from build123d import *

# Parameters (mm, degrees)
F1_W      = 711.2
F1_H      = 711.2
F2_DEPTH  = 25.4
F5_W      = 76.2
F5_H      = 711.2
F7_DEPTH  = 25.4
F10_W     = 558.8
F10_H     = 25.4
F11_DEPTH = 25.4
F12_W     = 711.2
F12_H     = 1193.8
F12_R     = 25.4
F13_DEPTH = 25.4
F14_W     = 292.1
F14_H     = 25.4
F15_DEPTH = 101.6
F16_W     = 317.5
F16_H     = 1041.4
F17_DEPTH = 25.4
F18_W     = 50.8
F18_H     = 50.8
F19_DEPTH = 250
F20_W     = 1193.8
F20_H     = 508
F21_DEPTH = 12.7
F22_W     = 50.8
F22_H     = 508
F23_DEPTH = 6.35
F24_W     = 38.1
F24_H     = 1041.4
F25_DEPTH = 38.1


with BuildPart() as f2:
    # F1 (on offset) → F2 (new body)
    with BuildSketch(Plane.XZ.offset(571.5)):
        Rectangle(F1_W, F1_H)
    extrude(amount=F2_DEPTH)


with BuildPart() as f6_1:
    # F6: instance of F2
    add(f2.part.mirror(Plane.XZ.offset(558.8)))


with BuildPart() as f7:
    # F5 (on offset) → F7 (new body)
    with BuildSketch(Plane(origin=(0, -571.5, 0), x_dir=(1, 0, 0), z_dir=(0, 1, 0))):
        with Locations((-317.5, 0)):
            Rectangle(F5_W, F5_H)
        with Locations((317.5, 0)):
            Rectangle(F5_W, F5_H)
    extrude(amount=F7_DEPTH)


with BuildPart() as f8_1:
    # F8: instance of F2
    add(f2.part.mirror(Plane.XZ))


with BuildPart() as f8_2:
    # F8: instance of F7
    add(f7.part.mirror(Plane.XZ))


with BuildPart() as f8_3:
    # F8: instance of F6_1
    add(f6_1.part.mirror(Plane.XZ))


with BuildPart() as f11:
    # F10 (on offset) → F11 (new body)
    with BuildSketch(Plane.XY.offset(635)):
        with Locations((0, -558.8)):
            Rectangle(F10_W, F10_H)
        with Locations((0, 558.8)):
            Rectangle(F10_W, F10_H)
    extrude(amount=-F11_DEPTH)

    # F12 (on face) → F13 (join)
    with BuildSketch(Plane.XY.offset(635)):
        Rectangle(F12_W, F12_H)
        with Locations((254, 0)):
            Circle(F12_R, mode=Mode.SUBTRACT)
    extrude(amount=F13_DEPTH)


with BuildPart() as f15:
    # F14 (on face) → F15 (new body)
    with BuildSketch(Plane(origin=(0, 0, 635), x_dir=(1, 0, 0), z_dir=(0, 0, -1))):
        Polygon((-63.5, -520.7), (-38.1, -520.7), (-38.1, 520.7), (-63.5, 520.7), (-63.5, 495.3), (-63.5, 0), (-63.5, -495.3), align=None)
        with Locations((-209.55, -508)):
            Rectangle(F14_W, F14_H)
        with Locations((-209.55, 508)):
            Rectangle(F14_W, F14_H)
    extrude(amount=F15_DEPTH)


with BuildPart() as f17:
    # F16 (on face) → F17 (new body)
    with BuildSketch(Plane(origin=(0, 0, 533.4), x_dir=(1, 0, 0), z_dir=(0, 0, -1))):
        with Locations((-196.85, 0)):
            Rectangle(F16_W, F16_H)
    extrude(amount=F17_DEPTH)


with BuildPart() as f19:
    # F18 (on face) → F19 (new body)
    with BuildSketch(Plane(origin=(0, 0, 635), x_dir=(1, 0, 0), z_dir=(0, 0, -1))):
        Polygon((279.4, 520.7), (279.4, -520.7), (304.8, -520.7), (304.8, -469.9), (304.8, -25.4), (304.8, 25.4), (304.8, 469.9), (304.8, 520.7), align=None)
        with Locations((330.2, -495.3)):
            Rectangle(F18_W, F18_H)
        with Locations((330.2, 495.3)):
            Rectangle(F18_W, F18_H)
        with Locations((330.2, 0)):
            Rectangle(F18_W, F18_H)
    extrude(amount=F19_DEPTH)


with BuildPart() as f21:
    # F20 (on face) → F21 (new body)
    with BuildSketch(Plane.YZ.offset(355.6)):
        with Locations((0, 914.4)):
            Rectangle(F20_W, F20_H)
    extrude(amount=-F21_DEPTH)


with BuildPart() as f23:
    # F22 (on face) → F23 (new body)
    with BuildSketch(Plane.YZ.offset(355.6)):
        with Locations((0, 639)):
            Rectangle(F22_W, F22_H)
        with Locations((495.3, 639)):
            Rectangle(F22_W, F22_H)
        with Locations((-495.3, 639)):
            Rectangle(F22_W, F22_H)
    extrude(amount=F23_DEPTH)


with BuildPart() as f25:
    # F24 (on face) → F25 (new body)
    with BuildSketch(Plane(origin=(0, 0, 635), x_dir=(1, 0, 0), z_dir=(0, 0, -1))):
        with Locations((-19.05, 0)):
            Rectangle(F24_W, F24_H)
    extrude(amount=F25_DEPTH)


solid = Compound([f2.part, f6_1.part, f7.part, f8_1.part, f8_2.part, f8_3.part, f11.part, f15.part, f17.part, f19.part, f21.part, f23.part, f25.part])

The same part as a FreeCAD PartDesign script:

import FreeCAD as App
import Part
import Sketcher

V = App.Vector
Q = App.Units.Quantity


def add_polygon(sketch, points):
    """Adds a closed chain of lines whose ends are joined by coincident constraints."""
    first, n = sketch.GeometryCount, len(points)
    for a, b in zip(points, points[1:] + points[:1]):
        sketch.addGeometry(Part.LineSegment(App.Vector(*a, 0), App.Vector(*b, 0)), False)
    for i in range(n):
        sketch.addConstraint(Sketcher.Constraint("Coincident", first + i, 2, first + (i + 1) % n, 1))

doc = App.newDocument("Part")
body = doc.addObject("PartDesign::Body", "Body")

sketch1 = doc.addObject("Sketcher::SketchObject", "Sketch")
body.addObject(sketch1)
sketch1.AttachmentSupport = (doc.XZ_Plane, [""])
sketch1.MapMode = "FlatFace"
sketch1.AttachmentOffset = App.Placement(V(0, 0, 22.5 * 25.4), App.Rotation())
add_polygon(sketch1, [(-356, 356), (-356, -356), (356, -356), (356, 356)])
sketch1.addConstraint(Sketcher.Constraint("Vertical", 0))
sketch1.addConstraint(Sketcher.Constraint("Horizontal", 1))
sketch1.addConstraint(Sketcher.Constraint("Vertical", 2))
sketch1.addConstraint(Sketcher.Constraint("Horizontal", 3))
sketch1.addConstraint(Sketcher.Constraint("Symmetric", 0, 2, 2, 2, -1, 1))
sketch1.addConstraint(Sketcher.Constraint("Equal", 3, 0))
sketch1.addConstraint(Sketcher.Constraint("DistanceX", 1, 1, 1, 2, Q("28 in")))
pad1 = doc.addObject("PartDesign::Pad", "Pad")
body.addObject(pad1)
pad1.Profile = sketch1
pad1.Length = Q("1 in")
body2 = doc.addObject("PartDesign::Body", "Body001")
doc.recompute()

mirroring = doc.addObject("Part::Mirroring", "Mirroring")
mirroring.Source = body
mirroring.Base = V(0, -558.8, 0)
mirroring.Normal = V(0, -1, 0)
body2.BaseFeature = mirroring
doc.recompute()
body3 = doc.addObject("PartDesign::Body", "Body002")
body3.AllowCompound = True

sketch2 = doc.addObject("Sketcher::SketchObject", "Sketch001")
body3.addObject(sketch2)
sketch2.AttachmentSupport = (doc.getObject("XZ_Plane002"), [""])
sketch2.MapMode = "FlatFace"
sketch2.AttachmentOffset = App.Placement(V(0, 0, 22.5 * 25.4), App.Rotation())
add_polygon(sketch2, [(-356, -356), (-356, 356), (-279, 356), (-279, -356)])
add_polygon(sketch2, [(279, -356), (279, 356), (356, 356), (356, -356)])
sketch2.addConstraint(Sketcher.Constraint("Vertical", 0))
sketch2.addConstraint(Sketcher.Constraint("Horizontal", 1))
sketch2.addConstraint(Sketcher.Constraint("Vertical", 2))
sketch2.addConstraint(Sketcher.Constraint("Horizontal", 3))
sketch2.addConstraint(Sketcher.Constraint("Vertical", 4))
sketch2.addConstraint(Sketcher.Constraint("Horizontal", 5))
sketch2.addConstraint(Sketcher.Constraint("Vertical", 6))
sketch2.addConstraint(Sketcher.Constraint("Horizontal", 7))
sketch2.addConstraint(Sketcher.Constraint("Symmetric", 2, 2, 4, 2, -1, 1))
sketch2.addConstraint(Sketcher.Constraint("Symmetric", 0, 2, 6, 2, -1, 1))
sketch2.addConstraint(Sketcher.Constraint("Horizontal", 1, 2, 4, 2))
sketch2.addConstraint(Sketcher.Constraint("DistanceX", 1, 1, 1, 2, Q("3 in")))
sketch2.addConstraint(Sketcher.Constraint("DistanceY", 0, 1, 0, 2, Q("28 in")))
sketch2.addConstraint(Sketcher.Constraint("DistanceX", 0, 2, -1, 1, Q("14 in")))
pad2 = doc.addObject("PartDesign::Pad", "Pad001")
body3.addObject(pad2)
pad2.Profile = sketch2
pad2.Length = Q("1 in")
pad2.Reversed = True
body4 = doc.addObject("PartDesign::Body", "Body003")
doc.recompute()

mirroring2 = doc.addObject("Part::Mirroring", "Mirroring001")
mirroring2.Source = body
mirroring2.Base = V(0, 0, 0)
mirroring2.Normal = V(0, -1, 0)
body4.BaseFeature = mirroring2
doc.recompute()
body5 = doc.addObject("PartDesign::Body", "Body004")
body5.AllowCompound = True
doc.recompute()

mirroring3 = doc.addObject("Part::Mirroring", "Mirroring002")
mirroring3.Source = body3
mirroring3.Base = V(0, 0, 0)
mirroring3.Normal = V(0, -1, 0)
body5.BaseFeature = mirroring3
doc.recompute()
body6 = doc.addObject("PartDesign::Body", "Body005")
doc.recompute()

mirroring4 = doc.addObject("Part::Mirroring", "Mirroring003")
mirroring4.Source = body2
mirroring4.Base = V(0, 0, 0)
mirroring4.Normal = V(0, -1, 0)
body6.BaseFeature = mirroring4
doc.recompute()
body7 = doc.addObject("PartDesign::Body", "Body006")
body7.AllowCompound = True

sketch3 = doc.addObject("Sketcher::SketchObject", "Sketch002")
body7.addObject(sketch3)
sketch3.AttachmentSupport = (doc.getObject("XY_Plane006"), [""])
sketch3.MapMode = "FlatFace"
sketch3.AttachmentOffset = App.Placement(V(0, 0, 25 * 25.4), App.Rotation())
add_polygon(sketch3, [(-279, -546), (-279, -572), (279, -572), (279, -546)])
add_polygon(sketch3, [(-279, 572), (-279, 546), (279, 546), (279, 572)])
sketch3.addConstraint(Sketcher.Constraint("Vertical", 0))
sketch3.addConstraint(Sketcher.Constraint("Horizontal", 1))
sketch3.addConstraint(Sketcher.Constraint("Vertical", 2))
sketch3.addConstraint(Sketcher.Constraint("Horizontal", 3))
sketch3.addConstraint(Sketcher.Constraint("Vertical", 4))
sketch3.addConstraint(Sketcher.Constraint("Horizontal", 5))
sketch3.addConstraint(Sketcher.Constraint("Vertical", 6))
sketch3.addConstraint(Sketcher.Constraint("Horizontal", 7))
sketch3.addConstraint(Sketcher.Constraint("Symmetric", 2, 2, 4, 2, -1, 1))
sketch3.addConstraint(Sketcher.Constraint("Symmetric", 0, 2, 6, 2, -1, 1))
sketch3.addConstraint(Sketcher.Constraint("Vertical", 3, 2, 4, 2))
sketch3.addConstraint(Sketcher.Constraint("DistanceX", 1, 1, 1, 2, Q("22 in")))
sketch3.addConstraint(Sketcher.Constraint("DistanceY", 0, 2, 0, 1, Q("1 in")))
sketch3.addConstraint(Sketcher.Constraint("DistanceY", 3, 2, 4, 2, Q("43 in")))
pad3 = doc.addObject("PartDesign::Pad", "Pad002")
body7.addObject(pad3)
pad3.Profile = sketch3
pad3.Length = Q("1 in")
pad3.Reversed = True

sketch4 = doc.addObject("Sketcher::SketchObject", "Sketch003")
body7.addObject(sketch4)
sketch4.AttachmentSupport = (doc.getObject("XY_Plane006"), [""])
sketch4.MapMode = "FlatFace"
sketch4.AttachmentOffset = App.Placement(V(0, 0, 25 * 25.4), App.Rotation())
add_polygon(sketch4, [(-356, 597), (-356, -597), (356, -597), (356, 597)])
sketch4.addGeometry(Part.Circle(V(254, 0, 0), V(0, 0, 1), 25), False)
sketch4.addConstraint(Sketcher.Constraint("Vertical", 0))
sketch4.addConstraint(Sketcher.Constraint("Horizontal", 1))
sketch4.addConstraint(Sketcher.Constraint("Vertical", 2))
sketch4.addConstraint(Sketcher.Constraint("Horizontal", 3))
sketch4.addConstraint(Sketcher.Constraint("Symmetric", 0, 2, 2, 2, -1, 1))
sketch4.addConstraint(Sketcher.Constraint("PointOnObject", 4, 3, -1))
sketch4.addConstraint(Sketcher.Constraint("Diameter", 4, Q("2 in")))
sketch4.addConstraint(Sketcher.Constraint("DistanceX", 1, 1, 1, 2, Q("28 in")))
sketch4.addConstraint(Sketcher.Constraint("DistanceY", 0, 2, 0, 1, Q("47 in")))
sketch4.addConstraint(Sketcher.Constraint("DistanceX", -1, 1, 4, 3, Q("10 in")))
pad4 = doc.addObject("PartDesign::Pad", "Pad003")
body7.addObject(pad4)
pad4.Profile = sketch4
pad4.Length = Q("1 in")
body8 = doc.addObject("PartDesign::Body", "Body007")

sketch5 = doc.addObject("Sketcher::SketchObject", "Sketch004")
body8.addObject(sketch5)
sketch5.AttachmentSupport = (doc.getObject("XY_Plane007"), [""])
sketch5.MapMode = "FlatFace"
sketch5.AttachmentOffset = App.Placement(V(0, 0, 25 * 25.4), App.Rotation())
add_polygon(sketch5, [(-38, 521), (-38, -521), (-356, -521), (-356, -495), (-64, -495), (-64, 495), (-356, 495), (-356, 521)])
sketch5.addConstraint(Sketcher.Constraint("Vertical", 0))
sketch5.addConstraint(Sketcher.Constraint("Horizontal", 1))
sketch5.addConstraint(Sketcher.Constraint("Vertical", 2))
sketch5.addConstraint(Sketcher.Constraint("Horizontal", 3))
sketch5.addConstraint(Sketcher.Constraint("Vertical", 4))
sketch5.addConstraint(Sketcher.Constraint("Horizontal", 5))
sketch5.addConstraint(Sketcher.Constraint("Vertical", 6))
sketch5.addConstraint(Sketcher.Constraint("Horizontal", 7))
sketch5.addConstraint(Sketcher.Constraint("Symmetric", 2, 2, 5, 2, -1))
sketch5.addConstraint(Sketcher.Constraint("Equal", 2, 6))
sketch5.addConstraint(Sketcher.Constraint("DistanceY", 0, 2, 0, 1, Q("41 in")))
sketch5.addConstraint(Sketcher.Constraint("DistanceY", 2, 1, 2, 2, Q("1 in")))
sketch5.addConstraint(Sketcher.Constraint("DistanceX", 1, 2, 1, 1, Q("12.5 in")))
sketch5.addConstraint(Sketcher.Constraint("DistanceX", 3, 1, 3, 2, Q("11.5 in")))
sketch5.addConstraint(Sketcher.Constraint("DistanceX", 1, 2, -1, 1, Q("14 in")))
pad5 = doc.addObject("PartDesign::Pad", "Pad004")
body8.addObject(pad5)
pad5.Profile = sketch5
pad5.Length = Q("4 in")
pad5.Reversed = True
body9 = doc.addObject("PartDesign::Body", "Body008")

sketch6 = doc.addObject("Sketcher::SketchObject", "Sketch005")
body9.addObject(sketch6)
sketch6.AttachmentSupport = (doc.getObject("XY_Plane008"), [""])
sketch6.MapMode = "FlatFace"
sketch6.AttachmentOffset = App.Placement(V(0, 0, 21 * 25.4), App.Rotation())
add_polygon(sketch6, [(-356, -521), (-356, 521), (-38, 521), (-38, -521)])
sketch6.addConstraint(Sketcher.Constraint("Vertical", 0))
sketch6.addConstraint(Sketcher.Constraint("Horizontal", 1))
sketch6.addConstraint(Sketcher.Constraint("Vertical", 2))
sketch6.addConstraint(Sketcher.Constraint("Horizontal", 3))
sketch6.addConstraint(Sketcher.Constraint("DistanceY", 0, 1, 0, 2, Q("41 in")))
sketch6.addConstraint(Sketcher.Constraint("DistanceX", 1, 1, 1, 2, Q("12.5 in")))
sketch6.addConstraint(Sketcher.Constraint("DistanceX", 0, 2, -1, 1, Q("14 in")))
sketch6.addConstraint(Sketcher.Constraint("DistanceY", -1, 1, 0, 2, Q("20.5 in")))
pad6 = doc.addObject("PartDesign::Pad", "Pad005")
body9.addObject(pad6)
pad6.Profile = sketch6
pad6.Length = Q("1 in")
pad6.Reversed = True
body10 = doc.addObject("PartDesign::Body", "Body009")

sketch7 = doc.addObject("Sketcher::SketchObject", "Sketch006")
body10.addObject(sketch7)
sketch7.AttachmentSupport = (doc.getObject("XY_Plane009"), [""])
sketch7.MapMode = "FlatFace"
sketch7.AttachmentOffset = App.Placement(V(0, 0, 25 * 25.4), App.Rotation())
add_polygon(sketch7, [(279, -521), (279, 521), (356, 521), (356, 470), (305, 470), (305, 25), (356, 25), (356, -25), (305, -25), (305, -470), (356, -470), (356, -521)])
sketch7.addConstraint(Sketcher.Constraint("Vertical", 0))
sketch7.addConstraint(Sketcher.Constraint("Horizontal", 1))
sketch7.addConstraint(Sketcher.Constraint("Vertical", 2))
sketch7.addConstraint(Sketcher.Constraint("Horizontal", 3))
sketch7.addConstraint(Sketcher.Constraint("Vertical", 4))
sketch7.addConstraint(Sketcher.Constraint("Horizontal", 5))
sketch7.addConstraint(Sketcher.Constraint("Vertical", 6))
sketch7.addConstraint(Sketcher.Constraint("Horizontal", 7))
sketch7.addConstraint(Sketcher.Constraint("Vertical", 8))
sketch7.addConstraint(Sketcher.Constraint("Horizontal", 9))
sketch7.addConstraint(Sketcher.Constraint("Vertical", 10))
sketch7.addConstraint(Sketcher.Constraint("Horizontal", 11))
sketch7.addConstraint(Sketcher.Constraint("Symmetric", 4, 2, 7, 2, -1))
sketch7.addConstraint(Sketcher.Constraint("Symmetric", 2, 2, 9, 2, -1))
sketch7.addConstraint(Sketcher.Constraint("Vertical", 2, 2, 5, 2))
sketch7.addConstraint(Sketcher.Constraint("Equal", 9, 2))
sketch7.addConstraint(Sketcher.Constraint("Equal", 2, 6))
sketch7.addConstraint(Sketcher.Constraint("Equal", 6, 10))
sketch7.addConstraint(Sketcher.Constraint("DistanceX", 1, 1, 1, 2, Q("3 in")))
sketch7.addConstraint(Sketcher.Constraint("DistanceX", 3, 2, 3, 1, Q("2 in")))
sketch7.addConstraint(Sketcher.Constraint("DistanceY", 0, 1, 0, 2, Q("41 in")))
sketch7.addConstraint(Sketcher.Constraint("DistanceX", -1, 1, 0, 2, Q("11 in")))
pad7 = doc.addObject("PartDesign::Pad", "Pad006")
body10.addObject(pad7)
pad7.Profile = sketch7
pad7.Length = 250
pad7.Reversed = True
body11 = doc.addObject("PartDesign::Body", "Body010")

sketch8 = doc.addObject("Sketcher::SketchObject", "Sketch007")
body11.addObject(sketch8)
sketch8.AttachmentSupport = (doc.getObject("YZ_Plane010"), [""])
sketch8.MapMode = "FlatFace"
sketch8.AttachmentOffset = App.Placement(V(0, 0, 14 * 25.4), App.Rotation())
add_polygon(sketch8, [(-597, 1168), (-597, 660), (597, 660), (597, 1168)])
sketch8.addConstraint(Sketcher.Constraint("Vertical", 0))
sketch8.addConstraint(Sketcher.Constraint("Horizontal", 1))
sketch8.addConstraint(Sketcher.Constraint("Vertical", 2))
sketch8.addConstraint(Sketcher.Constraint("Horizontal", 3))
sketch8.addConstraint(Sketcher.Constraint("DistanceX", 1, 1, 1, 2, Q("47 in")))
sketch8.addConstraint(Sketcher.Constraint("DistanceY", 0, 2, 0, 1, Q("20 in")))
sketch8.addConstraint(Sketcher.Constraint("DistanceY", -1, 1, 0, 2, Q("26 in")))
sketch8.addConstraint(Sketcher.Constraint("DistanceX", 0, 2, -1, 1, Q("23.5 in")))
pad8 = doc.addObject("PartDesign::Pad", "Pad007")
body11.addObject(pad8)
pad8.Profile = sketch8
pad8.Length = Q("0.5 in")
pad8.Reversed = True
body12 = doc.addObject("PartDesign::Body", "Body011")
body12.AllowCompound = True

sketch9 = doc.addObject("Sketcher::SketchObject", "Sketch008")
body12.addObject(sketch9)
sketch9.AttachmentSupport = (doc.getObject("YZ_Plane011"), [""])
sketch9.MapMode = "FlatFace"
sketch9.AttachmentOffset = App.Placement(V(0, 0, 14 * 25.4), App.Rotation())
add_polygon(sketch9, [(-25, 893), (-25, 385), (25, 385), (25, 893)])
add_polygon(sketch9, [(470, 893), (470, 385), (521, 385), (521, 893)])
add_polygon(sketch9, [(-521, 893), (-521, 385), (-470, 385), (-470, 893)])
sketch9.addConstraint(Sketcher.Constraint("Vertical", 0))
sketch9.addConstraint(Sketcher.Constraint("Horizontal", 1))
sketch9.addConstraint(Sketcher.Constraint("Vertical", 2))
sketch9.addConstraint(Sketcher.Constraint("Horizontal", 3))
sketch9.addConstraint(Sketcher.Constraint("Vertical", 4))
sketch9.addConstraint(Sketcher.Constraint("Horizontal", 5))
sketch9.addConstraint(Sketcher.Constraint("Vertical", 6))
sketch9.addConstraint(Sketcher.Constraint("Horizontal", 7))
sketch9.addConstraint(Sketcher.Constraint("Vertical", 8))
sketch9.addConstraint(Sketcher.Constraint("Horizontal", 9))
sketch9.addConstraint(Sketcher.Constraint("Vertical", 10))
sketch9.addConstraint(Sketcher.Constraint("Horizontal", 11))
sketch9.addConstraint(Sketcher.Constraint("Symmetric", 5, 2, 8, 2, -2))
sketch9.addConstraint(Sketcher.Constraint("Symmetric", 7, 2, 10, 2, -2))
sketch9.addConstraint(Sketcher.Constraint("Horizontal", 1, 2, 4, 2))
sketch9.addConstraint(Sketcher.Constraint("Horizontal", 3, 2, 6, 2))
sketch9.addConstraint(Sketcher.Constraint("Equal", 3, 5))
sketch9.addConstraint(Sketcher.Constraint("DistanceX", 1, 1, 1, 2, Q("2 in")))
sketch9.addConstraint(Sketcher.Constraint("DistanceY", 0, 2, 0, 1, Q("20 in")))
sketch9.addConstraint(Sketcher.Constraint("DistanceX", 0, 2, -1, 1, Q("1 in")))
sketch9.addConstraint(Sketcher.Constraint("DistanceX", 8, 2, 4, 2, Q("39 in")))
sketch9.addConstraint(Sketcher.Constraint("DistanceY", -1, 1, 0, 2, Q("385 mm")))
pad9 = doc.addObject("PartDesign::Pad", "Pad008")
body12.addObject(pad9)
pad9.Profile = sketch9
pad9.Length = Q("0.25 in")
body13 = doc.addObject("PartDesign::Body", "Body012")

sketch10 = doc.addObject("Sketcher::SketchObject", "Sketch009")
body13.addObject(sketch10)
sketch10.AttachmentSupport = (doc.getObject("XY_Plane012"), [""])
sketch10.MapMode = "FlatFace"
sketch10.AttachmentOffset = App.Placement(V(0, 0, 25 * 25.4), App.Rotation())
add_polygon(sketch10, [(-38, -521), (-38, 521), (0, 521), (0, -521)])
sketch10.addConstraint(Sketcher.Constraint("Vertical", 0))
sketch10.addConstraint(Sketcher.Constraint("Horizontal", 1))
sketch10.addConstraint(Sketcher.Constraint("Vertical", 2))
sketch10.addConstraint(Sketcher.Constraint("Horizontal", 3))
sketch10.addConstraint(Sketcher.Constraint("Symmetric", 1, 2, 2, 2, -1, 1))
sketch10.addConstraint(Sketcher.Constraint("DistanceY", 0, 1, 0, 2, Q("41 in")))
sketch10.addConstraint(Sketcher.Constraint("DistanceX", 1, 1, 1, 2, Q("1.5 in")))
pad10 = doc.addObject("PartDesign::Pad", "Pad009")
body13.addObject(pad10)
pad10.Profile = sketch10
pad10.Length = Q("1.5 in")
pad10.Reversed = True
mirroring.Visibility = False
mirroring2.Visibility = False
mirroring3.Visibility = False
mirroring4.Visibility = False

doc.recompute()
